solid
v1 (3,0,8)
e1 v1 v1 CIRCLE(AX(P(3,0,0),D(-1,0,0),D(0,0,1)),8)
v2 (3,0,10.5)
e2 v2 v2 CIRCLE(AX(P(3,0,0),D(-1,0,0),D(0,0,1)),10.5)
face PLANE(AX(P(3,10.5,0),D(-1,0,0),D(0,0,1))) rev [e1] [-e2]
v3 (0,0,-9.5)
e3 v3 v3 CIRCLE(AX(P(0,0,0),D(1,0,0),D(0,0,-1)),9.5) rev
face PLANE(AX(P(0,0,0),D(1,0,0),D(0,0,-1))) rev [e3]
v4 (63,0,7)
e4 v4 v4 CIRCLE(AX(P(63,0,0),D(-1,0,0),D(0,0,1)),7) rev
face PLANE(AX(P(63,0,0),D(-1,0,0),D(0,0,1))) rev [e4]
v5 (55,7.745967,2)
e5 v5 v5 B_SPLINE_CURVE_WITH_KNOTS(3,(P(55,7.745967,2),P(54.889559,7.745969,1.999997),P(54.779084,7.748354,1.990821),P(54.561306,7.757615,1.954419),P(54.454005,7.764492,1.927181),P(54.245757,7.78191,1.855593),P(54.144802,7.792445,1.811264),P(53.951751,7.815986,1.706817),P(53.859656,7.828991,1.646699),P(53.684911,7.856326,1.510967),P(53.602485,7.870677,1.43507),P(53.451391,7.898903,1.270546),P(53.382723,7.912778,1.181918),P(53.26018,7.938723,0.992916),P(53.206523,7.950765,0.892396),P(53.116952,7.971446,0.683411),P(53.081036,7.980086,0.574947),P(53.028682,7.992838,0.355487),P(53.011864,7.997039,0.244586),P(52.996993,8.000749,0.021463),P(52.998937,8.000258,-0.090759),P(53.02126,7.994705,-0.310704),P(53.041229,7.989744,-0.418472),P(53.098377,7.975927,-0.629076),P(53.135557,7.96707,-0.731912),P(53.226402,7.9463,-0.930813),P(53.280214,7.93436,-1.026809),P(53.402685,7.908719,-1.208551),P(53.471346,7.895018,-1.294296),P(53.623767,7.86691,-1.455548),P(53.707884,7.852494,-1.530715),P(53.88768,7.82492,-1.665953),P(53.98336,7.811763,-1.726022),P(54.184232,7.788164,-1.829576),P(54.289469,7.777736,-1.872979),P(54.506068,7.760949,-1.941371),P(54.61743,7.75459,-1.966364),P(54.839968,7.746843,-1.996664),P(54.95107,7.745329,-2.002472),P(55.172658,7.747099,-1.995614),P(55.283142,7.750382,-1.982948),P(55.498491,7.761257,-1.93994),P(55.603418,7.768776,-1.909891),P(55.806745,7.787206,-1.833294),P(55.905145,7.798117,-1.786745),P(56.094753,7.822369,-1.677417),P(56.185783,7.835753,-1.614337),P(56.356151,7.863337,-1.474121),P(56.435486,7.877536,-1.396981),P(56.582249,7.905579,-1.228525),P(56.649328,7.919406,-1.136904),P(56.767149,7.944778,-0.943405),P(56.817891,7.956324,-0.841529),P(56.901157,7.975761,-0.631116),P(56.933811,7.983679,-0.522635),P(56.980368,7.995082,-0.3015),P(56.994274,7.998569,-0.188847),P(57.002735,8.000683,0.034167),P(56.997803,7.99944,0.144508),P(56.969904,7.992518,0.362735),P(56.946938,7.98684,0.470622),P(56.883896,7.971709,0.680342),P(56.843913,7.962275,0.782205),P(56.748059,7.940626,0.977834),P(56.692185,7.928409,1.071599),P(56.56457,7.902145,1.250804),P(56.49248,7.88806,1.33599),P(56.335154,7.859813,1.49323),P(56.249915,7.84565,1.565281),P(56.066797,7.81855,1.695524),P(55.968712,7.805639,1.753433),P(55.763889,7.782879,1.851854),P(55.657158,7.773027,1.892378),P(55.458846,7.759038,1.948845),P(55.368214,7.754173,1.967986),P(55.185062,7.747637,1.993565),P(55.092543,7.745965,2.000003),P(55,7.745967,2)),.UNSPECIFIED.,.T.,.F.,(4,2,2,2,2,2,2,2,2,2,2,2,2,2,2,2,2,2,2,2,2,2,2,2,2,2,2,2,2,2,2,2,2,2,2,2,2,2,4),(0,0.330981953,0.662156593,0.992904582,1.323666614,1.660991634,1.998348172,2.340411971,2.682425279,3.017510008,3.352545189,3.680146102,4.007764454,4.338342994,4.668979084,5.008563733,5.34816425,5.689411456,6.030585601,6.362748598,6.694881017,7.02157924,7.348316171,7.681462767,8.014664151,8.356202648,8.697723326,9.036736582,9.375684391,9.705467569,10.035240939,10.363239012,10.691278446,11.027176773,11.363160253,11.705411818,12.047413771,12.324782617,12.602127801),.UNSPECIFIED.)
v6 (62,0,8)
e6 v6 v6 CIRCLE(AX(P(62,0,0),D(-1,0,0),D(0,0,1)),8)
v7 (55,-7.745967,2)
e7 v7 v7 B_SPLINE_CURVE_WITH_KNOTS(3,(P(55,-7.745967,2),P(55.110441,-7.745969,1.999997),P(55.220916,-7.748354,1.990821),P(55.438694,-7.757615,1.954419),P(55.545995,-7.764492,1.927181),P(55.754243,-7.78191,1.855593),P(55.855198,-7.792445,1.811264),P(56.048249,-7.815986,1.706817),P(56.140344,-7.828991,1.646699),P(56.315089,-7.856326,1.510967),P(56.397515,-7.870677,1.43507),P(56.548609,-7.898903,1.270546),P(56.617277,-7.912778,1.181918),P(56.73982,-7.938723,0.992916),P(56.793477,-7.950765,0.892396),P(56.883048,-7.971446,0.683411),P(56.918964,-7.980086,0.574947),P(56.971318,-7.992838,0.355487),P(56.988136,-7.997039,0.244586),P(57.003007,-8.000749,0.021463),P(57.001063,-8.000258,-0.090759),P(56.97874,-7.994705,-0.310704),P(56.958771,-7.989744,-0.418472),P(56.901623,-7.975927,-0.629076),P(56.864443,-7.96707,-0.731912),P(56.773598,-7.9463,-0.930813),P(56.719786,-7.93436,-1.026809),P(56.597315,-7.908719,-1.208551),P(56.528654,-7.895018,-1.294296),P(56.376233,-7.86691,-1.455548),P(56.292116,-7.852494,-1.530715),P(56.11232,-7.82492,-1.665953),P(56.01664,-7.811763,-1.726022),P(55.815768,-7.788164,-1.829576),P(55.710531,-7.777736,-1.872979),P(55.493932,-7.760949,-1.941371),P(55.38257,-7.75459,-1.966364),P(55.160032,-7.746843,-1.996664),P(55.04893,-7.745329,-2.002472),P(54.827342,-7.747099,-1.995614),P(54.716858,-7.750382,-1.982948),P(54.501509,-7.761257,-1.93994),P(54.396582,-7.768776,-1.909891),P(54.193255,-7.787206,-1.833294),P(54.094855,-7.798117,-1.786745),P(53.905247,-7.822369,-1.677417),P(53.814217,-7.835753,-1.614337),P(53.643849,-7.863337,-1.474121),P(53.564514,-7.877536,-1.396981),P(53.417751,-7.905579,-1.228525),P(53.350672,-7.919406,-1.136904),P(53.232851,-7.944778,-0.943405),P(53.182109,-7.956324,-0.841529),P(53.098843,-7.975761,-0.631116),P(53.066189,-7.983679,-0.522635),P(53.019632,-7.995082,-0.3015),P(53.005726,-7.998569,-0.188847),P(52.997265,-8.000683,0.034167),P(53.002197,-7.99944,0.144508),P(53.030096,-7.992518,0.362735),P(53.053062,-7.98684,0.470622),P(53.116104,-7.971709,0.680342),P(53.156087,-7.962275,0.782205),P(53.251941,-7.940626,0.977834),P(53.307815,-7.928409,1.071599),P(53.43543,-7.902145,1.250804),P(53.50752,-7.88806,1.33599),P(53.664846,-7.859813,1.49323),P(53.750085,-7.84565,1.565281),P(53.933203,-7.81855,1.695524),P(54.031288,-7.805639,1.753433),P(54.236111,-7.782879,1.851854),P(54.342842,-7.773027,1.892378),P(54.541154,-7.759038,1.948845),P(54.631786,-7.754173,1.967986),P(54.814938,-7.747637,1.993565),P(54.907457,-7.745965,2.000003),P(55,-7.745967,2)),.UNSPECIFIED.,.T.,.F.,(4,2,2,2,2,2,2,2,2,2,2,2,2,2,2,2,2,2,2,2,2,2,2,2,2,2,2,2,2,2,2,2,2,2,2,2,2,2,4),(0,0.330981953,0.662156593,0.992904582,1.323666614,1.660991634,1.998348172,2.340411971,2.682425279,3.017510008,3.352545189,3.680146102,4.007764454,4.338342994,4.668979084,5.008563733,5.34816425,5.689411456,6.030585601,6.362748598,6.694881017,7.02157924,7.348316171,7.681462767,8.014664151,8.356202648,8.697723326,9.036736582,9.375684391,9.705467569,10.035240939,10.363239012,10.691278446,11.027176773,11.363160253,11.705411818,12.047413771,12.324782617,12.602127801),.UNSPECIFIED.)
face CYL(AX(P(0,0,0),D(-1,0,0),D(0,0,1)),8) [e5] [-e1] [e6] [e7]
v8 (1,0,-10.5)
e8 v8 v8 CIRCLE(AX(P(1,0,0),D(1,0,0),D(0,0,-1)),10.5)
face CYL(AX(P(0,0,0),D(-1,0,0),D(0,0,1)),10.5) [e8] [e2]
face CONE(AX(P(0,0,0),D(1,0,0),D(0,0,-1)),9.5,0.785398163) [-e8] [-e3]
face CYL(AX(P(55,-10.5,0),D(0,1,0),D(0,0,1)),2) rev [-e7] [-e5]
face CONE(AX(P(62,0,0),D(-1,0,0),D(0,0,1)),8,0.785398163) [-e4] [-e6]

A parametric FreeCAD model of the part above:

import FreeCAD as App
import Part
import Sketcher

V = App.Vector


def edges_at(feature, points):
    """Names of the edges that pass closest to the given points."""
    edges = feature.Shape.Edges
    near = lambda p: min(range(len(edges)), key=lambda i: edges[i].distToShape(Part.Vertex(*p))[0])
    return sorted({f"Edge{near(p) + 1}" for p in points})


def add_polygon(sketch, points):
    """Adds a closed chain of lines whose ends are joined by coincident constraints."""
    first, n = sketch.GeometryCount, len(points)
    for a, b in zip(points, points[1:] + points[:1]):
        sketch.addGeometry(Part.LineSegment(App.Vector(*a, 0), App.Vector(*b, 0)), False)
    for i in range(n):
        sketch.addConstraint(Sketcher.Constraint("Coincident", first + i, 2, first + (i + 1) % n, 1))

doc = App.newDocument("Part")
params = doc.addObject("Spreadsheet::Sheet", "Params")
for row, (alias, value) in enumerate([
    ("sketch1_width", "63 mm"),
    ("sketch1_width2", "60 mm"),
    ("sketch1_height", "8 mm"),
    ("sketch1_height2", "10.5 mm"),
    ("revolution_angle", "360 deg"),
    ("chamfer_size", "1 mm"),
    ("sketch2_diameter", "4 mm"),
], start=1):
    params.set(f"A{row}", alias)
    params.set(f"B{row}", "=" + value)
    params.setAlias(f"B{row}", alias)

body = doc.addObject("PartDesign::Body", "Body")

# Sketch on XY plane
sketch1 = doc.addObject("Sketcher::SketchObject", "Sketch")
body.addObject(sketch1)
sketch1.AttachmentSupport = (doc.XY_Plane, [""])
sketch1.MapMode = "FlatFace"
add_polygon(sketch1, [(0, 10.5), (0, 0), (63, 0), (63, 8), (3, 8), (3, 10.5)])  # lines 0-5
sketch1.addConstraint([
    Sketcher.Constraint("Vertical", 0),
    Sketcher.Constraint("Horizontal", 1),
    Sketcher.Constraint("Vertical", 2),
    Sketcher.Constraint("Horizontal", 3),
    Sketcher.Constraint("Vertical", 4),
    Sketcher.Constraint("Horizontal", 5),
    Sketcher.Constraint("Coincident", 0, 2, -1, 1),
    Sketcher.Constraint("DistanceX", 1, 1, 1, 2, 63.0),
    Sketcher.Constraint("DistanceX", 3, 2, 3, 1, 60.0),
    Sketcher.Constraint("DistanceY", 2, 1, 2, 2, 8.0),
    Sketcher.Constraint("DistanceY", 0, 2, 0, 1, 10.5),
])
sketch1.setExpression("Constraints[13]", "Params.sketch1_width")
sketch1.setExpression("Constraints[14]", "Params.sketch1_width2")
sketch1.setExpression("Constraints[15]", "Params.sketch1_height")
sketch1.setExpression("Constraints[16]", "Params.sketch1_height2")
revolution = doc.addObject("PartDesign::Revolution", "Revolution")
body.addObject(revolution)
revolution.Profile = sketch1
revolution.ReferenceAxis = (sketch1, ["H_Axis"])
revolution.setExpression("Angle", "Params.revolution_angle")
doc.recompute()

chamfer = doc.addObject("PartDesign::Chamfer", "Chamfer")
body.addObject(chamfer)
chamfer.Base = (revolution, edges_at(revolution, [(0, -10.5, 0), (63, -8, 0)]))
chamfer.setExpression("Size", "Params.chamfer_size")

# Sketch on XZ plane
sketch2 = doc.addObject("Sketcher::SketchObject", "Sketch001")
body.addObject(sketch2)
sketch2.AttachmentSupport = (doc.XZ_Plane, [""])
sketch2.MapMode = "FlatFace"
sketch2.addGeometry(Part.Circle(V(55, 0, 0), V(0, 0, 1), 2), False)
sketch2.addConstraint([
    Sketcher.Constraint("PointOnObject", 0, 3, -1),
    Sketcher.Constraint("Diameter", 0, 4.0),
    Sketcher.Constraint("DistanceX", -1, 1, 0, 3, 55.0),
])
sketch2.setExpression("Constraints[1]", "Params.sketch2_diameter")
pocket1 = doc.addObject("PartDesign::Pocket", "Pocket")
body.addObject(pocket1)
pocket1.Profile = sketch2
pocket1.Type = "ThroughAll"
pocket1.Midplane = True

doc.recompute()
